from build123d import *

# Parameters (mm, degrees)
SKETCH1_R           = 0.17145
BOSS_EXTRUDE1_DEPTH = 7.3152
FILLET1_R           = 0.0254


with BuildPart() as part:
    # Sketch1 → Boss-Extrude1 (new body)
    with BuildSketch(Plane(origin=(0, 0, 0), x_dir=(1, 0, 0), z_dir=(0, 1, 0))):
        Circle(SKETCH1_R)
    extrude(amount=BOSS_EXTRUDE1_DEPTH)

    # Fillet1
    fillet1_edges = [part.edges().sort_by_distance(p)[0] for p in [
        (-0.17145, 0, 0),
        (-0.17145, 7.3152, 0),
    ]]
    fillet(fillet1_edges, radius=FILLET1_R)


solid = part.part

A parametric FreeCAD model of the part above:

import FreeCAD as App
import Part
import Sketcher

V = App.Vector
Q = App.Units.Quantity


def edges_at(feature, points):
    """Names of the edges that pass closest to the given points."""
    edges = feature.Shape.Edges
    near = lambda p: min(range(len(edges)), key=lambda i: edges[i].distToShape(Part.Vertex(*p))[0])
    return sorted({f"Edge{near(p) + 1}" for p in points})

doc = App.newDocument("Part")
params = doc.addObject("Spreadsheet::Sheet", "Params")
for row, (alias, value) in enumerate([
    ("pad1_length", "0.288 in"),
    ("fillet_radius", "0.001 in"),
], start=1):
    params.set(f"A{row}", alias)
    params.set(f"B{row}", "=" + value)
    params.setAlias(f"B{row}", alias)

body = doc.addObject("PartDesign::Body", "Body")

# Sketch on XZ plane
sketch1 = body.newObject("Sketcher::SketchObject", "Sketch")
sketch1.AttachmentSupport = (doc.getObject("XZ_Plane"), [""])
sketch1.MapMode = "FlatFace"
sketch1.addGeometry(Part.Circle(V(0, 0, 0), V(0, 0, 1), 0.17), False)
sketch1.addConstraint([
    Sketcher.Constraint("Coincident", 0, 3, -1, 1),
    Sketcher.Constraint("Diameter", 0, Q("0.0135 in")),
])
pad1 = body.newObject("PartDesign::Pad", "Pad")
pad1.Profile = sketch1
pad1.setExpression("Length", "Params.pad1_length")
pad1.Reversed = True
doc.recompute()

fillet = body.newObject("PartDesign::Fillet", "Fillet")
fillet.Base = (pad1, edges_at(pad1, [(-0.171, 0, 0), (-0.171, 7.315, 0)]))
fillet.setExpression("Radius", "Params.fillet_radius")

doc.recompute()
